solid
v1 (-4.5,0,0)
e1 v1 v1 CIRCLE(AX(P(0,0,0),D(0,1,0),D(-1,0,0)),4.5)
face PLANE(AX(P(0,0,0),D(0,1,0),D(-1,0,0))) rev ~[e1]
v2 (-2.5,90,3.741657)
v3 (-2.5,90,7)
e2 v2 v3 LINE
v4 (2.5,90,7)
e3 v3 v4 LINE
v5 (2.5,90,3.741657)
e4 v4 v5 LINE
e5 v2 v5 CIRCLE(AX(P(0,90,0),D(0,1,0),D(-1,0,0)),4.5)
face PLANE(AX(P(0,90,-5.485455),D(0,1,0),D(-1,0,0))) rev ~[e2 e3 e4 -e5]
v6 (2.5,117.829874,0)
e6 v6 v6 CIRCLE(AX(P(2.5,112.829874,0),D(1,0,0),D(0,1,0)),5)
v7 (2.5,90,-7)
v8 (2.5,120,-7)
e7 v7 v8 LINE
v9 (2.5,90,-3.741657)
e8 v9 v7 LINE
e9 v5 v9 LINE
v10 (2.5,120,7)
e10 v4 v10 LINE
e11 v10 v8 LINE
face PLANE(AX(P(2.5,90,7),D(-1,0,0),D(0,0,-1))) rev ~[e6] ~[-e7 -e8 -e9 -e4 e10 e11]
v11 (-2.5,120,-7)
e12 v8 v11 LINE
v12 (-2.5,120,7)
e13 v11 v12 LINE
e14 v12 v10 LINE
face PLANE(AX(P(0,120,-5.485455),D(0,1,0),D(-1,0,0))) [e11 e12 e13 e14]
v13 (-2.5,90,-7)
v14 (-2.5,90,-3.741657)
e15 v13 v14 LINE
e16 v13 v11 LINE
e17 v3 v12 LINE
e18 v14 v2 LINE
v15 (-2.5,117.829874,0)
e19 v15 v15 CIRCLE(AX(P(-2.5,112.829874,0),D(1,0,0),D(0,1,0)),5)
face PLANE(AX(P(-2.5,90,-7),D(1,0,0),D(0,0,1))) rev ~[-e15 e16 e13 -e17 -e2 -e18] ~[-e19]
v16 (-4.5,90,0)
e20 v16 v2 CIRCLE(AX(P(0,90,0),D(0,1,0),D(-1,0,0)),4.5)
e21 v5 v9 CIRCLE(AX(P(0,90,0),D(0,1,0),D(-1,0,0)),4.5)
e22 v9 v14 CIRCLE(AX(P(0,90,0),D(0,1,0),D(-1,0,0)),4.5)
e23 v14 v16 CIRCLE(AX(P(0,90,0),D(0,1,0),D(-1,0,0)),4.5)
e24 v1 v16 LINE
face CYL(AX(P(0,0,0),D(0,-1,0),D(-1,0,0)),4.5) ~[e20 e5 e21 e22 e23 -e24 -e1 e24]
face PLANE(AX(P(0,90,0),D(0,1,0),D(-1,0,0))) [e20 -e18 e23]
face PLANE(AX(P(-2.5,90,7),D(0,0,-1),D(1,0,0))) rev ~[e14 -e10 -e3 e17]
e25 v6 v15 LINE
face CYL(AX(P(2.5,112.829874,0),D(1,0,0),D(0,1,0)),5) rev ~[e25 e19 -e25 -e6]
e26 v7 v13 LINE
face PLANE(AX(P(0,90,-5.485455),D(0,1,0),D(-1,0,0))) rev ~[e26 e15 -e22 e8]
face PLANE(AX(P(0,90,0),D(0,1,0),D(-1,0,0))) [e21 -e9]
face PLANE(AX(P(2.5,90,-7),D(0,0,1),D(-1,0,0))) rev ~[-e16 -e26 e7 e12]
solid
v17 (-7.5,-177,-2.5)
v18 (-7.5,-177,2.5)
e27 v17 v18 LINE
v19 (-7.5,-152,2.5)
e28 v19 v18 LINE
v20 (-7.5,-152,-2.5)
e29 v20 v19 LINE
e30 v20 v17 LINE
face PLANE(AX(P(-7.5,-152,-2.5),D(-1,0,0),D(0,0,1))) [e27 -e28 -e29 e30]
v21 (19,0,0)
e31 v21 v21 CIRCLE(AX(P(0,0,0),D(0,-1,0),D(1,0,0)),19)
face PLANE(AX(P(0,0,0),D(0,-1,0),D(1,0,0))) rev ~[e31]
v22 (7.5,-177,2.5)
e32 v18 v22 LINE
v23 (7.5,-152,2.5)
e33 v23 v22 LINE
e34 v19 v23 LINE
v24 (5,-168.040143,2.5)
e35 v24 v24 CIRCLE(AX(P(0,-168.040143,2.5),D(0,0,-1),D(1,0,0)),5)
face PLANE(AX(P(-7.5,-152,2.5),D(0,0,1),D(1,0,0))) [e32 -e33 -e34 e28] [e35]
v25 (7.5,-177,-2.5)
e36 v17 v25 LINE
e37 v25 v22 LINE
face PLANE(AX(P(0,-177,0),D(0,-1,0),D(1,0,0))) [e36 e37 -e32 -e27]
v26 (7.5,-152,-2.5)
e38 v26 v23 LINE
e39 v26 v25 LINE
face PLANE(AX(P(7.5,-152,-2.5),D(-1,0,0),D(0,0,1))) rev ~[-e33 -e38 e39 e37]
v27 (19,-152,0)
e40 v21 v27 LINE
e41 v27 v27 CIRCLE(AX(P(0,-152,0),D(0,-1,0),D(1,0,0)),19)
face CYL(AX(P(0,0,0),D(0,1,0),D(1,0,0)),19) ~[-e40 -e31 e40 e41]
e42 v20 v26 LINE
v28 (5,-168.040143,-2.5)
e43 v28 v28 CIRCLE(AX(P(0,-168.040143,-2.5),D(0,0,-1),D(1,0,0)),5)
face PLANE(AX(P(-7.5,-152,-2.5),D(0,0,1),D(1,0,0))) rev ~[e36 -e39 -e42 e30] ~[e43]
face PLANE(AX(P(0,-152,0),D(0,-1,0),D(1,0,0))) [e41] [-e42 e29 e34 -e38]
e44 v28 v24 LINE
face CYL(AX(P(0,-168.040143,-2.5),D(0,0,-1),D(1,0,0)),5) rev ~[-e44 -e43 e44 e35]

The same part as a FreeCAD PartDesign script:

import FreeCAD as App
import Part
import Sketcher

V = App.Vector


def add_polygon(sketch, points):
    """Adds a closed chain of lines whose ends are joined by coincident constraints."""
    first, n = sketch.GeometryCount, len(points)
    for a, b in zip(points, points[1:] + points[:1]):
        sketch.addGeometry(Part.LineSegment(App.Vector(*a, 0), App.Vector(*b, 0)), False)
    for i in range(n):
        sketch.addConstraint(Sketcher.Constraint("Coincident", first + i, 2, first + (i + 1) % n, 1))

doc = App.newDocument("Part")
body = doc.addObject("PartDesign::Body", "Body")

sketch1 = body.newObject("Sketcher::SketchObject", "Sketch")
sketch1.AttachmentSupport = (doc.getObject("XZ_Plane"), [""])
sketch1.MapMode = "FlatFace"
sketch1.addGeometry(Part.Circle(V(0, 0, 0), V(0, 0, 1), 19), False)
sketch1.addConstraint(Sketcher.Constraint("Coincident", 0, 3, -1, 1))
sketch1.addConstraint(Sketcher.Constraint("Diameter", 0, 38.0))
pad1 = body.newObject("PartDesign::Pad", "Pad")
pad1.Profile = sketch1
pad1.Length = 152

sketch2 = body.newObject("Sketcher::SketchObject", "Sketch001")
sketch2.AttachmentSupport = (doc.getObject("XZ_Plane"), [""])
sketch2.MapMode = "FlatFace"
sketch2.AttachmentOffset = App.Placement(V(0, 0, 152), App.Rotation())
add_polygon(sketch2, [(-7.5, 2.5), (-7.5, -2.5), (7.5, -2.5), (7.5, 2.5)])
sketch2.addConstraint(Sketcher.Constraint("Vertical", 0))
sketch2.addConstraint(Sketcher.Constraint("Horizontal", 1))
sketch2.addConstraint(Sketcher.Constraint("Vertical", 2))
sketch2.addConstraint(Sketcher.Constraint("Horizontal", 3))
sketch2.addConstraint(Sketcher.Constraint("Symmetric", 0, 2, 2, 2, -1, 1))
sketch2.addConstraint(Sketcher.Constraint("DistanceX", 1, 1, 1, 2, 15.0))
sketch2.addConstraint(Sketcher.Constraint("DistanceY", 0, 2, 0, 1, 5.0))
pad2 = body.newObject("PartDesign::Pad", "Pad001")
pad2.Profile = sketch2
pad2.Length = 25

sketch3 = body.newObject("Sketcher::SketchObject", "Sketch002")
sketch3.AttachmentSupport = (doc.getObject("XY_Plane"), [""])
sketch3.MapMode = "FlatFace"
sketch3.AttachmentOffset = App.Placement(V(0, 0, -2.5), App.Rotation())
sketch3.addGeometry(Part.Circle(V(0, -168.040143, 0), V(0, 0, 1), 5), False)
sketch3.addConstraint(Sketcher.Constraint("PointOnObject", 0, 3, -2))
sketch3.addConstraint(Sketcher.Constraint("Diameter", 0, 10.0))
sketch3.addConstraint(Sketcher.Constraint("DistanceY", 0, 3, -1, 1, 168.040143))
pocket1 = body.newObject("PartDesign::Pocket", "Pocket")
pocket1.Profile = sketch3
pocket1.Length = 25
pocket1.Reversed = True
body2 = doc.addObject("PartDesign::Body", "Body001")

sketch4 = body2.newObject("Sketcher::SketchObject", "Sketch003")
sketch4.AttachmentSupport = (doc.getObject("XZ_Plane001"), [""])
sketch4.MapMode = "FlatFace"
sketch4.addGeometry(Part.Circle(V(0, 0, 0), V(0, 0, 1), 4.5), False)
sketch4.addConstraint(Sketcher.Constraint("Coincident", 0, 3, -1, 1))
sketch4.addConstraint(Sketcher.Constraint("Diameter", 0, 9.0))
pad3 = body2.newObject("PartDesign::Pad", "Pad002")
pad3.Profile = sketch4
pad3.Length = 90
pad3.Reversed = True

sketch5 = body2.newObject("Sketcher::SketchObject", "Sketch004")
sketch5.AttachmentSupport = (doc.getObject("XZ_Plane001"), [""])
sketch5.MapMode = "FlatFace"
sketch5.AttachmentOffset = App.Placement(V(0, 0, -90), App.Rotation())
add_polygon(sketch5, [(-2.5, -7), (-2.5, 7), (2.5, 7), (2.5, -7)])
sketch5.addConstraint(Sketcher.Constraint("Vertical", 0))
sketch5.addConstraint(Sketcher.Constraint("Horizontal", 1))
sketch5.addConstraint(Sketcher.Constraint("Vertical", 2))
sketch5.addConstraint(Sketcher.Constraint("Horizontal", 3))
sketch5.addConstraint(Sketcher.Constraint("Symmetric", 0, 2, 2, 2, -1, 1))
sketch5.addConstraint(Sketcher.Constraint("DistanceX", 1, 1, 1, 2, 5.0))
sketch5.addConstraint(Sketcher.Constraint("DistanceY", 0, 1, 0, 2, 14.0))
pad4 = body2.newObject("PartDesign::Pad", "Pad003")
pad4.Profile = sketch5
pad4.Length = 30
pad4.Reversed = True

sketch6 = body2.newObject("Sketcher::SketchObject", "Sketch005")
sketch6.AttachmentSupport = (doc.getObject("YZ_Plane001"), [""])
sketch6.MapMode = "FlatFace"
sketch6.AttachmentOffset = App.Placement(V(0, 0, 2.5), App.Rotation())
sketch6.addGeometry(Part.Circle(V(112.829874, 0, 0), V(0, 0, 1), 5), False)
sketch6.addConstraint(Sketcher.Constraint("PointOnObject", 0, 3, -1))
sketch6.addConstraint(Sketcher.Constraint("Diameter", 0, 10.0))
sketch6.addConstraint(Sketcher.Constraint("DistanceX", -1, 1, 0, 3, 112.829874))
pocket2 = body2.newObject("PartDesign::Pocket", "Pocket001")
pocket2.Profile = sketch6
pocket2.Length = 25

doc.recompute()
